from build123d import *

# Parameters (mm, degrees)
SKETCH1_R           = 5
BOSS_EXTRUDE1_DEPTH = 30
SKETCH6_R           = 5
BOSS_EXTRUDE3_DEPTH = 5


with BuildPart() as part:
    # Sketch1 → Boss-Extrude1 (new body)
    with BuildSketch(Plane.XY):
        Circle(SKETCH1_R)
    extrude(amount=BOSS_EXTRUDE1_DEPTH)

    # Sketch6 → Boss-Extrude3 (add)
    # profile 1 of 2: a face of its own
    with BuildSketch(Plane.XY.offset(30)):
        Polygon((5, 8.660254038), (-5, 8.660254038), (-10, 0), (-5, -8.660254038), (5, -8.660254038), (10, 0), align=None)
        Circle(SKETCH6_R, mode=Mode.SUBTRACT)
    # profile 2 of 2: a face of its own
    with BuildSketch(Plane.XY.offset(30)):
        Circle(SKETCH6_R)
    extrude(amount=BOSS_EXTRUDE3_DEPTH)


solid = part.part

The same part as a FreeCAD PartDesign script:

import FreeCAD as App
import Part
import Sketcher
from FreeCAD import Vector
Q = App.Units.Quantity


def add_polygon(sketch, points):
    """Adds a closed chain of lines whose ends are joined by coincident constraints."""
    first, n = sketch.GeometryCount, len(points)
    for a, b in zip(points, points[1:] + points[:1]):
        sketch.addGeometry(Part.LineSegment(App.Vector(*a, 0), App.Vector(*b, 0)), False)
    for i in range(n):
        sketch.addConstraint(Sketcher.Constraint("Coincident", first + i, 2, first + (i + 1) % n, 1))

doc = App.newDocument("Part")
body = doc.addObject("PartDesign::Body", "Body")

sketch1 = doc.addObject("Sketcher::SketchObject", "Sketch")
body.addObject(sketch1)
sketch1.AttachmentSupport = (doc.XY_Plane, [""])
sketch1.MapMode = "FlatFace"
sketch1.addGeometry(Part.Circle(Vector(0, 0, 0), Vector(0, 0, 1), 5), False)
sketch1.addConstraint([
    Sketcher.Constraint("Coincident", 0, 3, -1, 1),
    Sketcher.Constraint("Diameter", 0, Q("10 mm")),
])
pad1 = doc.addObject("PartDesign::Pad", "Pad")
body.addObject(pad1)
pad1.Profile = sketch1
pad1.Length = 30

sketch2 = doc.addObject("Sketcher::SketchObject", "Sketch001")
body.addObject(sketch2)
sketch2.AttachmentSupport = (doc.XY_Plane, [""])
sketch2.MapMode = "FlatFace"
sketch2.AttachmentOffset = App.Placement(Vector(0, 0, 30), App.Rotation())
add_polygon(sketch2, [(5, 9), (-5, 9), (-10, 0), (-5, -9), (5, -9), (10, 0)])
sketch2.addConstraint([
    Sketcher.Constraint("Horizontal", 0),
    Sketcher.Constraint("Horizontal", 3),
    Sketcher.Constraint("Symmetric", 0, 2, 3, 2, -1, 1),
    Sketcher.Constraint("Symmetric", 1, 2, 4, 2, -1, 1),
    Sketcher.Constraint("PointOnObject", 1, 2, -1),
    Sketcher.Constraint("Parallel", 2, 5),
    Sketcher.Constraint("Vertical", 0, 2, 2, 2),
    Sketcher.Constraint("DistanceX", 0, 2, 0, 1, Q("10 mm")),
    Sketcher.Constraint("Angle", 1, Q("-120 deg")),
    Sketcher.Constraint("Distance", 1, Q("10 mm")),
])
pad2 = doc.addObject("PartDesign::Pad", "Pad001")
body.addObject(pad2)
pad2.Profile = sketch2
pad2.Length = 5

doc.recompute()
